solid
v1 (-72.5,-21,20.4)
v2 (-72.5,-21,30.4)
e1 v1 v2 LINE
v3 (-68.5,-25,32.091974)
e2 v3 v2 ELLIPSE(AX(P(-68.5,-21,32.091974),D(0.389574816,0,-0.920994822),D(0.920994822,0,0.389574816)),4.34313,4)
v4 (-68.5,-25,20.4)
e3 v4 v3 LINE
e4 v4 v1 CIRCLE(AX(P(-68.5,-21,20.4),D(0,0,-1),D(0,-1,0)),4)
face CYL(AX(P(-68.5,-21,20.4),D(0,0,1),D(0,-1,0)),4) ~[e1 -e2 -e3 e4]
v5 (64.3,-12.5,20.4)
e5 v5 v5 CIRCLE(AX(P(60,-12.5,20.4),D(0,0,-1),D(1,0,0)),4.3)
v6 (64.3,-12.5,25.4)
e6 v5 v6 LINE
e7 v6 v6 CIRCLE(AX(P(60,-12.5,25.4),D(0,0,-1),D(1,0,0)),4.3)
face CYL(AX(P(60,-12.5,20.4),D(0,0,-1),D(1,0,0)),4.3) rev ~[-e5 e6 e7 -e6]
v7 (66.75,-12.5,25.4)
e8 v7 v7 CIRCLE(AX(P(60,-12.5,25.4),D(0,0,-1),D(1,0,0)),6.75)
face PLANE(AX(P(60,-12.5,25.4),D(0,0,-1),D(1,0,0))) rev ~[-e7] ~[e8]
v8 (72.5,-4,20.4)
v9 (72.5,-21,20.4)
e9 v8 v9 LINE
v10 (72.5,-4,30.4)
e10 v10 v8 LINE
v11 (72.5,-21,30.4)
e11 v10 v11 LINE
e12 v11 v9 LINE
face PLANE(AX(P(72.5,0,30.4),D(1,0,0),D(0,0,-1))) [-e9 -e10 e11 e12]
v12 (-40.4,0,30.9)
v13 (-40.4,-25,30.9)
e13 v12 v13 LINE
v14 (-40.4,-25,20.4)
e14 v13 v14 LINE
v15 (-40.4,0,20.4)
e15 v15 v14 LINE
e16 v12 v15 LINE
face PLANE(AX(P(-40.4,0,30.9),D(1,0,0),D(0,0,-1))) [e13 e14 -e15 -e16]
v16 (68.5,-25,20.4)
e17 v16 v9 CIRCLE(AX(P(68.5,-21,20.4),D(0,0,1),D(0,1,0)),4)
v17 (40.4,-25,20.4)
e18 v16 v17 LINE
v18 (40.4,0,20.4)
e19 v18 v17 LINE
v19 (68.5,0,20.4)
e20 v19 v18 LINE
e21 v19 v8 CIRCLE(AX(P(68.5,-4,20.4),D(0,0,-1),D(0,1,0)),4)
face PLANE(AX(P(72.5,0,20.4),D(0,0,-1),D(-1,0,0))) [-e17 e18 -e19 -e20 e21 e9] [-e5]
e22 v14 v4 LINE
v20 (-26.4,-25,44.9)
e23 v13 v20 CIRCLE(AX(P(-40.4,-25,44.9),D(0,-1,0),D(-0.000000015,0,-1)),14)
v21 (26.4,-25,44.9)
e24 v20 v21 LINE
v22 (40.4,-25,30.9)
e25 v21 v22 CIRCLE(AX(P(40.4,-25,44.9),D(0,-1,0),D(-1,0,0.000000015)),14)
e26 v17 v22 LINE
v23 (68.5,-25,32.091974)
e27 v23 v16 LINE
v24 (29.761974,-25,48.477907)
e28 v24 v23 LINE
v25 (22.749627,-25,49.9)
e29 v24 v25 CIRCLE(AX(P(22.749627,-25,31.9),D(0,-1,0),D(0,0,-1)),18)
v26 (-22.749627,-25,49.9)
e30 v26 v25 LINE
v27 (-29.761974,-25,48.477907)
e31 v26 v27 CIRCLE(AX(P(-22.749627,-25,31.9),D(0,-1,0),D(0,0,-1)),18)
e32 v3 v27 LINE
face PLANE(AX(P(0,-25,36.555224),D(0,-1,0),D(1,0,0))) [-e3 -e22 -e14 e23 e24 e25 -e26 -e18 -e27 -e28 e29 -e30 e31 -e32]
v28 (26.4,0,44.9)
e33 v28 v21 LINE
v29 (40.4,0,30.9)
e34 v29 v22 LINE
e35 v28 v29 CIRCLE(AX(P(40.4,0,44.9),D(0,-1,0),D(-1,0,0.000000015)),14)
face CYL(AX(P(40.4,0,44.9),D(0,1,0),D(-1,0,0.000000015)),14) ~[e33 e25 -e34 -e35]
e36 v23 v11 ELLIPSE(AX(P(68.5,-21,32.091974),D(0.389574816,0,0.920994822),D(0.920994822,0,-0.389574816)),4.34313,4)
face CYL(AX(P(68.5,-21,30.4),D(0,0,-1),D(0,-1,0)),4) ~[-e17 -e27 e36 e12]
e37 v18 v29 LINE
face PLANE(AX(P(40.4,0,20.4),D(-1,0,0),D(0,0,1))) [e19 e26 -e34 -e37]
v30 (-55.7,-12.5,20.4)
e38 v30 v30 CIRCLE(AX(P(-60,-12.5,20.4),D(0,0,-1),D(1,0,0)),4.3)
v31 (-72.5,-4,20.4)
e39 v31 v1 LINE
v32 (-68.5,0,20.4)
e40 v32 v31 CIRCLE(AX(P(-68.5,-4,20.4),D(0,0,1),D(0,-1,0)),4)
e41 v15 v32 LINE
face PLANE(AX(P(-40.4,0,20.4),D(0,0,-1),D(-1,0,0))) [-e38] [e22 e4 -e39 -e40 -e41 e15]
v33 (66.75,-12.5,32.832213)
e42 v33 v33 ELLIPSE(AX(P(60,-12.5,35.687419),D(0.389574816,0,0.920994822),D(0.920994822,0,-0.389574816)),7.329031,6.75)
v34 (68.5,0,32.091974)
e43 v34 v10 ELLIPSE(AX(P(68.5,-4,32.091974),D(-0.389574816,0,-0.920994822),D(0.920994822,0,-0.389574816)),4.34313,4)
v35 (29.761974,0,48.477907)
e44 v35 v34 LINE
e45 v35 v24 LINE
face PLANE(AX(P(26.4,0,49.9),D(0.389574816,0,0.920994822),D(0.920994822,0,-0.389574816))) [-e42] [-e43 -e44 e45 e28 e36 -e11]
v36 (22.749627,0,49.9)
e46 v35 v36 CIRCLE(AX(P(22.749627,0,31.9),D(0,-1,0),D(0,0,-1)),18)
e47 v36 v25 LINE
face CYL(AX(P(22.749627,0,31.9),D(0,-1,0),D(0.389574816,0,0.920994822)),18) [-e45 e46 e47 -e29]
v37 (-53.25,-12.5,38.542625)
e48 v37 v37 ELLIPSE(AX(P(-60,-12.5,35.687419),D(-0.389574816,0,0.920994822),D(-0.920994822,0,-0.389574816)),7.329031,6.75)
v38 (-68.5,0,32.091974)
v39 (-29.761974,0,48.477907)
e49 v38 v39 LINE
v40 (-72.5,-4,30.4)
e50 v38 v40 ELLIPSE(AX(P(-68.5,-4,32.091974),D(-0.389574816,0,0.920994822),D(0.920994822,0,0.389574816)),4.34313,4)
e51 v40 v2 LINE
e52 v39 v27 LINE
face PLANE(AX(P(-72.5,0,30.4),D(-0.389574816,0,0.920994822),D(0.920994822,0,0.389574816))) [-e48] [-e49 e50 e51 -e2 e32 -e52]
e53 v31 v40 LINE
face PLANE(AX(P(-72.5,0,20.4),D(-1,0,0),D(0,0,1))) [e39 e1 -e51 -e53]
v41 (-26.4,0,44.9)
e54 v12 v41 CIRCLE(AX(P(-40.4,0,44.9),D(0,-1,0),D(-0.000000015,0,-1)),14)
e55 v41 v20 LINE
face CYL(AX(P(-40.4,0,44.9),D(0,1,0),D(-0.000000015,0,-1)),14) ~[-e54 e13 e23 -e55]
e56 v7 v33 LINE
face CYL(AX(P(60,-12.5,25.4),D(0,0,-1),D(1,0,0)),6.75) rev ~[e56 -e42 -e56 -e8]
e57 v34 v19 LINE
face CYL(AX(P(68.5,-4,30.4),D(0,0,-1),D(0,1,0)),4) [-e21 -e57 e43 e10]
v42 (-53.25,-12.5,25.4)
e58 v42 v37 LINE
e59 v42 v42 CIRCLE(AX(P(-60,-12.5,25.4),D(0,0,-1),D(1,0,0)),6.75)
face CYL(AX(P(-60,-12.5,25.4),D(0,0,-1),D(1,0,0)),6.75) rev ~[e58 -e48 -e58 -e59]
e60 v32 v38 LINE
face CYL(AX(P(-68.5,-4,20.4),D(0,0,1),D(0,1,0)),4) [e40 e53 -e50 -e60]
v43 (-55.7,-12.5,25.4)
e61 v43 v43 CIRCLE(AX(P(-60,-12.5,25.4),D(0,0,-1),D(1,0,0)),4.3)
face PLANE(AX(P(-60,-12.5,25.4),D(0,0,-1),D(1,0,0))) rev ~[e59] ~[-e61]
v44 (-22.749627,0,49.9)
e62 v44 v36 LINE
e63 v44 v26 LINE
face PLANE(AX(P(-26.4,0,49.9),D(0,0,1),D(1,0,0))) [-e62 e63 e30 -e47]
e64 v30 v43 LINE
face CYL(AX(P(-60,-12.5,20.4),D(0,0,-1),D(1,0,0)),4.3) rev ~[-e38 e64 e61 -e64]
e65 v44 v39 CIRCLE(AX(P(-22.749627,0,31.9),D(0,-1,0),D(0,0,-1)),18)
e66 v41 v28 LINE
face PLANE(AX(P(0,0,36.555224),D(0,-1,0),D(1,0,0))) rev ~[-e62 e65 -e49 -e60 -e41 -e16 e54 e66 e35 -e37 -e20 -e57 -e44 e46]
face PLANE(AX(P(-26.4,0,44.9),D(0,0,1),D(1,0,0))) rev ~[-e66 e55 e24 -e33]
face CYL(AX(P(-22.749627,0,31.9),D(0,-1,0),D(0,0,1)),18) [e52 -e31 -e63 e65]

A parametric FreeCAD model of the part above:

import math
import FreeCAD as App
import Part
import Sketcher

V = App.Vector
Q = App.Units.Quantity


def edges_at(feature, points):
    """Names of the edges that pass closest to the given points."""
    edges = feature.Shape.Edges
    near = lambda p: min(range(len(edges)), key=lambda i: edges[i].distToShape(Part.Vertex(*p))[0])
    return sorted({f"Edge{near(p) + 1}" for p in points})

doc = App.newDocument("Part")
body = doc.addObject("PartDesign::Body", "Body")

# Sketch on XZ plane
sketch1 = body.newObject("Sketcher::SketchObject", "Sketch")
sketch1.AttachmentSupport = (doc.getObject("XZ_Plane"), [""])
sketch1.MapMode = "FlatFace"
sketch1.addGeometry([
    Part.ArcOfCircle(Part.Circle(V(-40.4, 44.9, 0), V(0, 0, 1), 14), math.radians(-90.000001), math.radians(0.000001)),  # 0
    Part.LineSegment(V(-26.4, 44.9, 0), V(26.4, 44.9, 0)),  # 1
    Part.ArcOfCircle(Part.Circle(V(40.4, 44.9, 0), V(0, 0, 1), 14), math.radians(179.999999), math.radians(270.000001)),  # 2
    Part.LineSegment(V(40.4, 30.9, 0), V(40.4, 20.4, 0)),  # 3
    Part.LineSegment(V(40.4, 20.4, 0), V(72.5, 20.4, 0)),  # 4
    Part.LineSegment(V(72.5, 20.4, 0), V(72.5, 30.4, 0)),  # 5
    Part.LineSegment(V(72.5, 30.4, 0), V(26.4, 49.9, 0)),  # 6
    Part.LineSegment(V(26.4, 49.9, 0), V(-26.4, 49.9, 0)),  # 7
    Part.LineSegment(V(-26.4, 49.9, 0), V(-72.5, 30.4, 0)),  # 8
    Part.LineSegment(V(-72.5, 30.4, 0), V(-72.5, 20.4, 0)),  # 9
    Part.LineSegment(V(-72.5, 20.4, 0), V(-40.4, 20.4, 0)),  # 10
    Part.LineSegment(V(-40.4, 20.4, 0), V(-40.4, 30.9, 0)),  # 11
], False)
sketch1.addConstraint([
    Sketcher.Constraint("Coincident", 0, 2, 1, 1),
    Sketcher.Constraint("Coincident", 1, 2, 2, 1),
    Sketcher.Constraint("Coincident", 2, 2, 3, 1),
    Sketcher.Constraint("Coincident", 3, 2, 4, 1),
    Sketcher.Constraint("Coincident", 4, 2, 5, 1),
    Sketcher.Constraint("Coincident", 5, 2, 6, 1),
    Sketcher.Constraint("Coincident", 6, 2, 7, 1),
    Sketcher.Constraint("Coincident", 7, 2, 8, 1),
    Sketcher.Constraint("Coincident", 8, 2, 9, 1),
    Sketcher.Constraint("Coincident", 9, 2, 10, 1),
    Sketcher.Constraint("Coincident", 10, 2, 11, 1),
    Sketcher.Constraint("Coincident", 11, 2, 0, 1),
    Sketcher.Constraint("Horizontal", 1),
    Sketcher.Constraint("Vertical", 3),
    Sketcher.Constraint("Horizontal", 4),
    Sketcher.Constraint("Vertical", 5),
    Sketcher.Constraint("Horizontal", 7),
    Sketcher.Constraint("Vertical", 9),
    Sketcher.Constraint("Horizontal", 10),
    Sketcher.Constraint("Vertical", 11),
    Sketcher.Constraint("Equal", 0, 2),
    Sketcher.Constraint("Symmetric", 0, 3, 2, 3, -2),
    Sketcher.Constraint("Symmetric", 5, 2, 8, 2, -2),
    Sketcher.Constraint("Symmetric", 3, 2, 10, 2, -2),
    Sketcher.Constraint("Horizontal", 2, 3, 0, 2),
    Sketcher.Constraint("Vertical", 1, 2, 6, 2),
    Sketcher.Constraint("Vertical", 0, 2, 7, 2),
    Sketcher.Constraint("Vertical", 0, 3, 10, 2),
    Sketcher.Constraint("Radius", 0, Q("14 mm")),
    Sketcher.Constraint("DistanceY", 5, 1, 5, 2, Q("10 mm")),
    Sketcher.Constraint("DistanceX", 1, 1, 1, 2, Q("52.8 mm")),
    Sketcher.Constraint("DistanceX", 4, 1, 4, 2, Q("32.1 mm")),
    Sketcher.Constraint("DistanceY", 3, 2, 3, 1, Q("10.5 mm")),
    Sketcher.Constraint("DistanceY", 1, 2, 6, 2, Q("5 mm")),
    Sketcher.Constraint("DistanceY", -1, 1, 0, 3, Q("44.9 mm")),
])
pad1 = body.newObject("PartDesign::Pad", "Pad")
pad1.Profile = sketch1
pad1.Length = 25

# Sketch on XY plane
sketch2 = body.newObject("Sketcher::SketchObject", "Sketch001")
sketch2.AttachmentSupport = (doc.getObject("XY_Plane"), [""])
sketch2.MapMode = "FlatFace"
sketch2.AttachmentOffset = App.Placement(V(0, 0, 20.4), App.Rotation())
sketch2.addGeometry([
    Part.Circle(V(-60, -12.5, 0), V(0, 0, 1), 4.3),
    Part.Circle(V(60, -12.5, 0), V(0, 0, 1), 4.3),
], False)
sketch2.addConstraint([
    Sketcher.Constraint("Equal", 0, 1),
    Sketcher.Constraint("Symmetric", 0, 3, 1, 3, -2),
    Sketcher.Constraint("Diameter", 0, Q("8.6 mm")),
    Sketcher.Constraint("DistanceX", 0, 3, -1, 1, Q("60 mm")),
    Sketcher.Constraint("DistanceY", 0, 3, -1, 1, Q("12.5 mm")),
])
pocket1 = body.newObject("PartDesign::Pocket", "Pocket")
pocket1.Profile = sketch2
pocket1.Type = "ThroughAll"
pocket1.Reversed = True

# Sketch on XY plane
sketch3 = body.newObject("Sketcher::SketchObject", "Sketch002")
sketch3.AttachmentSupport = (doc.getObject("XY_Plane"), [""])
sketch3.MapMode = "FlatFace"
sketch3.AttachmentOffset = App.Placement(V(0, 0, 25.4), App.Rotation())
sketch3.addGeometry([
    Part.Circle(V(-60, -12.5, 0), V(0, 0, 1), 6.75),
    Part.Circle(V(60, -12.5, 0), V(0, 0, 1), 6.75),
], False)
sketch3.addConstraint([
    Sketcher.Constraint("Equal", 0, 1),
    Sketcher.Constraint("Symmetric", 0, 3, 1, 3, -2),
    Sketcher.Constraint("Diameter", 0, Q("13.5 mm")),
    Sketcher.Constraint("DistanceX", 0, 3, -1, 1, Q("60 mm")),
    Sketcher.Constraint("DistanceY", 0, 3, -1, 1, Q("12.5 mm")),
])
pocket2 = body.newObject("PartDesign::Pocket", "Pocket001")
pocket2.Profile = sketch3
pocket2.Type = "ThroughAll"
pocket2.Reversed = True
doc.recompute()

fillet = body.newObject("PartDesign::Fillet", "Fillet")
fillet.Base = (pocket2, edges_at(pocket2, [
    (-72.5, -25, 25.4),
    (-72.5, 0, 25.4),
    (72.5, -25, 25.4),
    (72.5, 0, 25.4),
]))
fillet.Radius = 4
doc.recompute()

fillet2 = body.newObject("PartDesign::Fillet", "Fillet001")
fillet2.Base = (fillet, edges_at(fillet, [(-26.4, -12.5, 49.9), (26.4, -12.5, 49.9)]))
fillet2.Radius = 18

doc.recompute()
